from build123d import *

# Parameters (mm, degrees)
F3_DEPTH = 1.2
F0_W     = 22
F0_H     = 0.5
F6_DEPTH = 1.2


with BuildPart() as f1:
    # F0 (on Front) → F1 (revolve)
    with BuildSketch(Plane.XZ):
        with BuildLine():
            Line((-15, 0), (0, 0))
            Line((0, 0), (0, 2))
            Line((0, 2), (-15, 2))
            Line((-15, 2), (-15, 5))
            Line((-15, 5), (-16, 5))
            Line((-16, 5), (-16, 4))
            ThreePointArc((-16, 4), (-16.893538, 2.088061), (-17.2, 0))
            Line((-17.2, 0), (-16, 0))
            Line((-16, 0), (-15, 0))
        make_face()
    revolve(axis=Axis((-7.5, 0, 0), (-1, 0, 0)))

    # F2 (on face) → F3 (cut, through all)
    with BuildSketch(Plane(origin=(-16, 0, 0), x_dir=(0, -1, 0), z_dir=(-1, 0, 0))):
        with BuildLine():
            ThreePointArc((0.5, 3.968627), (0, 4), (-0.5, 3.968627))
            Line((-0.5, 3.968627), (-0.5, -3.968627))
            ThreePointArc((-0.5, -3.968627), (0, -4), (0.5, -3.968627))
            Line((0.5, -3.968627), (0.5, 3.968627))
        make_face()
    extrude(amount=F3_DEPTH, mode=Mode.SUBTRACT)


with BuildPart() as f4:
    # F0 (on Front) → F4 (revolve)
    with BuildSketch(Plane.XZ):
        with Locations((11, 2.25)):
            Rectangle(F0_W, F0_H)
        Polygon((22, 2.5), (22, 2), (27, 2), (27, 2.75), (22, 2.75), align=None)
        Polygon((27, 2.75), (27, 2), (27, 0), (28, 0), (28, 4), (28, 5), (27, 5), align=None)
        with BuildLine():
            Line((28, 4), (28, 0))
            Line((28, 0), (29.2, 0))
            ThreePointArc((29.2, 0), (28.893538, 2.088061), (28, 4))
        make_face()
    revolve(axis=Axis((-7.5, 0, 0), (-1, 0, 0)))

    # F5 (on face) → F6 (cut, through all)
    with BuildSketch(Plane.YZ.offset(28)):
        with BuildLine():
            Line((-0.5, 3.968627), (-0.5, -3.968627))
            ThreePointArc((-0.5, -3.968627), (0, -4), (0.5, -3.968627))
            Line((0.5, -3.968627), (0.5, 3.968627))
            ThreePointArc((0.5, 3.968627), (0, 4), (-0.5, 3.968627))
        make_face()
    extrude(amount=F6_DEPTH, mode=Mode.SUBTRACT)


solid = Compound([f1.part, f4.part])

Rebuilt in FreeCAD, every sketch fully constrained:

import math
import FreeCAD as App
import Part
import Sketcher
Q = App.Units.Quantity

doc = App.newDocument("Part")
params = doc.addObject("Spreadsheet::Sheet", "Params")
for row, (alias, value) in enumerate([
    ("sketch1_width", "15 mm"),
    ("sketch1_width2", "1 mm"),
    ("sketch1_height", "2 mm"),
    ("sketch1_height2", "3 mm"),
    ("sketch1_width3", "17.2 mm"),
    ("revolution_angle", "360 deg"),
    ("sketch3_width", "27 mm"),
    ("sketch3_width2", "1 mm"),
    ("sketch3_width3", "5 mm"),
    ("sketch3_height", "2 mm"),
    ("sketch3_width4", "2.2 mm"),
    ("revolution2_angle", "360 deg"),
], start=1):
    params.set(f"A{row}", alias)
    params.set(f"B{row}", "=" + value)
    params.setAlias(f"B{row}", alias)

body = doc.addObject("PartDesign::Body", "Body")

sketch1 = body.newObject("Sketcher::SketchObject", "Sketch")
sketch1.AttachmentSupport = (doc.getObject("XZ_Plane"), [""])
sketch1.MapMode = "FlatFace"
sketch1.addGeometry(Part.LineSegment(App.Vector(0, 0, 0), App.Vector(0, 2, 0)), False)
sketch1.addGeometry(Part.LineSegment(App.Vector(0, 2, 0), App.Vector(-15, 2, 0)), False)
sketch1.addGeometry(Part.LineSegment(App.Vector(-15, 2, 0), App.Vector(-15, 5, 0)), False)
sketch1.addGeometry(Part.LineSegment(App.Vector(-15, 5, 0), App.Vector(-16, 5, 0)), False)
sketch1.addGeometry(Part.LineSegment(App.Vector(-16, 5, 0), App.Vector(-16, 4, 0)), False)
sketch1.addGeometry(Part.ArcOfCircle(Part.Circle(App.Vector(-9.933338, 0.000002, 0), App.Vector(0, 0, 1), 7.266662), math.radians(146.601499), math.radians(180.000012)), False)
sketch1.addGeometry(Part.LineSegment(App.Vector(-17.2, 0, 0), App.Vector(0, 0, 0)), False)
sketch1.addConstraint(Sketcher.Constraint("Coincident", 0, 2, 1, 1))
sketch1.addConstraint(Sketcher.Constraint("Coincident", 1, 2, 2, 1))
sketch1.addConstraint(Sketcher.Constraint("Coincident", 2, 2, 3, 1))
sketch1.addConstraint(Sketcher.Constraint("Coincident", 3, 2, 4, 1))
sketch1.addConstraint(Sketcher.Constraint("Coincident", 4, 2, 5, 1))
sketch1.addConstraint(Sketcher.Constraint("Coincident", 5, 2, 6, 1))
sketch1.addConstraint(Sketcher.Constraint("Coincident", 6, 2, 0, 1))
sketch1.addConstraint(Sketcher.Constraint("Vertical", 0))
sketch1.addConstraint(Sketcher.Constraint("Horizontal", 1))
sketch1.addConstraint(Sketcher.Constraint("Vertical", 2))
sketch1.addConstraint(Sketcher.Constraint("Horizontal", 3))
sketch1.addConstraint(Sketcher.Constraint("Vertical", 4))
sketch1.addConstraint(Sketcher.Constraint("Horizontal", 6))
sketch1.addConstraint(Sketcher.Constraint("Coincident", 6, 2, -1, 1))
sketch1.addConstraint(Sketcher.Constraint("PointOnObject", 5, 3, -1))
sketch1.addConstraint(Sketcher.Constraint("Equal", 3, 4))
sketch1.addConstraint(Sketcher.Constraint("DistanceX", 1, 2, 1, 1, Q("15 mm")))
sketch1.addConstraint(Sketcher.Constraint("DistanceX", 3, 2, 3, 1, Q("1 mm")))
sketch1.addConstraint(Sketcher.Constraint("DistanceY", 0, 1, 0, 2, Q("2 mm")))
sketch1.addConstraint(Sketcher.Constraint("DistanceY", 2, 1, 2, 2, Q("3 mm")))
sketch1.addConstraint(Sketcher.Constraint("DistanceX", 6, 1, 6, 2, Q("17.2 mm")))
sketch1.setExpression("Constraints[16]", "Params.sketch1_width")
sketch1.setExpression("Constraints[17]", "Params.sketch1_width2")
sketch1.setExpression("Constraints[18]", "Params.sketch1_height")
sketch1.setExpression("Constraints[19]", "Params.sketch1_height2")
sketch1.setExpression("Constraints[20]", "Params.sketch1_width3")
revolution = body.newObject("PartDesign::Revolution", "Revolution")
revolution.Profile = sketch1
revolution.ReferenceAxis = (sketch1, ["H_Axis"])
revolution.setExpression("Angle", "Params.revolution_angle")

sketch2 = body.newObject("Sketcher::SketchObject", "Sketch001")
sketch2.AttachmentSupport = (doc.getObject("YZ_Plane"), [""])
sketch2.MapMode = "FlatFace"
sketch2.AttachmentOffset = App.Placement(App.Vector(0, 0, -16), App.Rotation())
sketch2.addGeometry(Part.ArcOfCircle(Part.Circle(App.Vector(0, -0.000004, 0), App.Vector(0, 0, 1), 4.000004), math.radians(82.819252), math.radians(97.180748)), False)
sketch2.addGeometry(Part.LineSegment(App.Vector(0.5, 3.968627, 0), App.Vector(0.5, -3.968627, 0)), False)
sketch2.addGeometry(Part.ArcOfCircle(Part.Circle(App.Vector(0, 0.000004, 0), App.Vector(0, 0, 1), 4.000004), math.radians(-97.180748), math.radians(-82.819252)), False)
sketch2.addGeometry(Part.LineSegment(App.Vector(-0.5, -3.968627, 0), App.Vector(-0.5, 3.968627, 0)), False)
sketch2.addConstraint(Sketcher.Constraint("Coincident", 0, 1, 1, 1))
sketch2.addConstraint(Sketcher.Constraint("Coincident", 1, 2, 2, 2))
sketch2.addConstraint(Sketcher.Constraint("Coincident", 2, 1, 3, 1))
sketch2.addConstraint(Sketcher.Constraint("Coincident", 3, 2, 0, 2))
sketch2.addConstraint(Sketcher.Constraint("Vertical", 1))
sketch2.addConstraint(Sketcher.Constraint("Vertical", 3))
sketch2.addConstraint(Sketcher.Constraint("Coincident", 0, 3, -1, 1))
sketch2.addConstraint(Sketcher.Constraint("Coincident", 2, 3, -1, 1))
sketch2.addConstraint(Sketcher.Constraint("Equal", 0, 2))
sketch2.addConstraint(Sketcher.Constraint("Horizontal", 1, 2, 2, 1))
sketch2.addConstraint(Sketcher.Constraint("DistanceX", 2, 1, 1, 2, Q("1 mm")))
sketch2.addConstraint(Sketcher.Constraint("Radius", 0, Q("4.000004 mm")))
pocket1 = body.newObject("PartDesign::Pocket", "Pocket")
pocket1.Profile = sketch2
pocket1.Type = "ThroughAll"
body2 = doc.addObject("PartDesign::Body", "Body001")

sketch3 = body2.newObject("Sketcher::SketchObject", "Sketch002")
sketch3.AttachmentSupport = (doc.getObject("XZ_Plane001"), [""])
sketch3.MapMode = "FlatFace"
sketch3.addGeometry(Part.LineSegment(App.Vector(0, 2.5, 0), App.Vector(0, 2, 0)), False)
sketch3.addGeometry(Part.LineSegment(App.Vector(0, 2, 0), App.Vector(27, 2, 0)), False)
sketch3.addGeometry(Part.LineSegment(App.Vector(27, 2, 0), App.Vector(27, 0, 0)), False)
sketch3.addGeometry(Part.LineSegment(App.Vector(27, 0, 0), App.Vector(29.2, 0, 0)), False)
sketch3.addGeometry(Part.ArcOfCircle(Part.Circle(App.Vector(21.933338, 0.000002, 0), App.Vector(0, 0, 1), 7.266662), math.radians(-0.000012), math.radians(33.398501)), False)
sketch3.addGeometry(Part.LineSegment(App.Vector(28, 4, 0), App.Vector(28, 5, 0)), False)
sketch3.addGeometry(Part.LineSegment(App.Vector(28, 5, 0), App.Vector(27, 5, 0)), False)
sketch3.addGeometry(Part.LineSegment(App.Vector(27, 5, 0), App.Vector(27, 2.75, 0)), False)
sketch3.addGeometry(Part.LineSegment(App.Vector(27, 2.75, 0), App.Vector(22, 2.75, 0)), False)
sketch3.addGeometry(Part.LineSegment(App.Vector(22, 2.75, 0), App.Vector(22, 2.5, 0)), False)
sketch3.addGeometry(Part.LineSegment(App.Vector(22, 2.5, 0), App.Vector(0, 2.5, 0)), False)
sketch3.addConstraint(Sketcher.Constraint("Coincident", 0, 2, 1, 1))
sketch3.addConstraint(Sketcher.Constraint("Coincident", 1, 2, 2, 1))
sketch3.addConstraint(Sketcher.Constraint("Coincident", 2, 2, 3, 1))
sketch3.addConstraint(Sketcher.Constraint("Coincident", 3, 2, 4, 1))
sketch3.addConstraint(Sketcher.Constraint("Coincident", 4, 2, 5, 1))
sketch3.addConstraint(Sketcher.Constraint("Coincident", 5, 2, 6, 1))
sketch3.addConstraint(Sketcher.Constraint("Coincident", 6, 2, 7, 1))
sketch3.addConstraint(Sketcher.Constraint("Coincident", 7, 2, 8, 1))
sketch3.addConstraint(Sketcher.Constraint("Coincident", 8, 2, 9, 1))
sketch3.addConstraint(Sketcher.Constraint("Coincident", 9, 2, 10, 1))
sketch3.addConstraint(Sketcher.Constraint("Coincident", 10, 2, 0, 1))
sketch3.addConstraint(Sketcher.Constraint("Vertical", 0))
sketch3.addConstraint(Sketcher.Constraint("Horizontal", 1))
sketch3.addConstraint(Sketcher.Constraint("Vertical", 2))
sketch3.addConstraint(Sketcher.Constraint("Horizontal", 3))
sketch3.addConstraint(Sketcher.Constraint("Vertical", 5))
sketch3.addConstraint(Sketcher.Constraint("Horizontal", 6))
sketch3.addConstraint(Sketcher.Constraint("Vertical", 7))
sketch3.addConstraint(Sketcher.Constraint("Horizontal", 8))
sketch3.addConstraint(Sketcher.Constraint("Vertical", 9))
sketch3.addConstraint(Sketcher.Constraint("Horizontal", 10))
sketch3.addConstraint(Sketcher.Constraint("PointOnObject", 4, 3, -1))
sketch3.addConstraint(Sketcher.Constraint("PointOnObject", 0, 2, -2))
sketch3.addConstraint(Sketcher.Constraint("PointOnObject", 2, 2, -1))
sketch3.addConstraint(Sketcher.Constraint("Vertical", 2, 2, 6, 2))
sketch3.addConstraint(Sketcher.Constraint("Equal", 6, 5))
sketch3.addConstraint(Sketcher.Constraint("DistanceX", 1, 1, 1, 2, Q("27 mm")))
sketch3.addConstraint(Sketcher.Constraint("DistanceX", 6, 2, 6, 1, Q("1 mm")))
sketch3.addConstraint(Sketcher.Constraint("DistanceX", 8, 2, 8, 1, Q("5 mm")))
sketch3.addConstraint(Sketcher.Constraint("DistanceY", 2, 2, 2, 1, Q("2 mm")))
sketch3.addConstraint(Sketcher.Constraint("DistanceX", 3, 1, 3, 2, Q("2.2 mm")))
sketch3.addConstraint(Sketcher.Constraint("DistanceY", 0, 2, 0, 1, Q("0.5 mm")))
sketch3.addConstraint(Sketcher.Constraint("DistanceY", -1, 1, 4, 2, Q("4 mm")))
sketch3.addConstraint(Sketcher.Constraint("DistanceY", 7, 2, 7, 1, Q("2.25 mm")))
sketch3.setExpression("Constraints[26]", "Params.sketch3_width")
sketch3.setExpression("Constraints[27]", "Params.sketch3_width2")
sketch3.setExpression("Constraints[28]", "Params.sketch3_width3")
sketch3.setExpression("Constraints[29]", "Params.sketch3_height")
sketch3.setExpression("Constraints[30]", "Params.sketch3_width4")
revolution2 = body2.newObject("PartDesign::Revolution", "Revolution001")
revolution2.Profile = sketch3
revolution2.ReferenceAxis = (sketch3, ["H_Axis"])
revolution2.setExpression("Angle", "Params.revolution2_angle")

sketch4 = body2.newObject("Sketcher::SketchObject", "Sketch003")
sketch4.AttachmentSupport = (doc.getObject("YZ_Plane001"), [""])
sketch4.MapMode = "FlatFace"
sketch4.AttachmentOffset = App.Placement(App.Vector(0, 0, 28), App.Rotation())
sketch4.addGeometry(Part.LineSegment(App.Vector(-0.5, 3.968627, 0), App.Vector(-0.5, -3.968627, 0)), False)
sketch4.addGeometry(Part.ArcOfCircle(Part.Circle(App.Vector(0, 0.000004, 0), App.Vector(0, 0, 1), 4.000004), math.radians(-97.180748), math.radians(-82.819252)), False)
sketch4.addGeometry(Part.LineSegment(App.Vector(0.5, -3.968627, 0), App.Vector(0.5, 3.968627, 0)), False)
sketch4.addGeometry(Part.ArcOfCircle(Part.Circle(App.Vector(0, -0.000004, 0), App.Vector(0, 0, 1), 4.000004), math.radians(82.819252), math.radians(97.180748)), False)
sketch4.addConstraint(Sketcher.Constraint("Coincident", 0, 2, 1, 1))
sketch4.addConstraint(Sketcher.Constraint("Coincident", 1, 2, 2, 1))
sketch4.addConstraint(Sketcher.Constraint("Coincident", 2, 2, 3, 1))
sketch4.addConstraint(Sketcher.Constraint("Coincident", 3, 2, 0, 1))
sketch4.addConstraint(Sketcher.Constraint("Vertical", 0))
sketch4.addConstraint(Sketcher.Constraint("Vertical", 2))
sketch4.addConstraint(Sketcher.Constraint("Coincident", 1, 3, -1, 1))
sketch4.addConstraint(Sketcher.Constraint("Coincident", 3, 3, -1, 1))
sketch4.addConstraint(Sketcher.Constraint("Equal", 1, 3))
sketch4.addConstraint(Sketcher.Constraint("Horizontal", 0, 2, 1, 2))
sketch4.addConstraint(Sketcher.Constraint("DistanceX", 0, 2, 1, 2, Q("1 mm")))
sketch4.addConstraint(Sketcher.Constraint("Radius", 1, Q("4.000004 mm")))
pocket2 = body2.newObject("PartDesign::Pocket", "Pocket001")
pocket2.Profile = sketch4
pocket2.Type = "ThroughAll"
pocket2.Reversed = True

doc.recompute()
